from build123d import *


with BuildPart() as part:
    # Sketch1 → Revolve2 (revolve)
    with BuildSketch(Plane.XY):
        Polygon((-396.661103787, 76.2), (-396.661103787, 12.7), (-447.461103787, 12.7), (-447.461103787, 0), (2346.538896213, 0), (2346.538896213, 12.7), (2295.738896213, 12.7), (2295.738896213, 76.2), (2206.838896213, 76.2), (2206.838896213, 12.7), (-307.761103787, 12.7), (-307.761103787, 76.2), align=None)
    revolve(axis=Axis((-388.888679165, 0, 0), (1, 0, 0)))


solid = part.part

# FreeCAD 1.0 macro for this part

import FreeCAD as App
import Part
import Sketcher
Q = App.Units.Quantity


def add_polygon(sketch, points):
    """Adds a closed chain of lines whose ends are joined by coincident constraints."""
    first, n = sketch.GeometryCount, len(points)
    for a, b in zip(points, points[1:] + points[:1]):
        sketch.addGeometry(Part.LineSegment(App.Vector(*a, 0), App.Vector(*b, 0)), False)
    for i in range(n):
        sketch.addConstraint(Sketcher.Constraint("Coincident", first + i, 2, first + (i + 1) % n, 1))

doc = App.newDocument("Part")
body = doc.addObject("PartDesign::Body", "Body")

# Sketch on XY plane
sketch1 = body.newObject("Sketcher::SketchObject", "Sketch")
sketch1.AttachmentSupport = (doc.getObject("XY_Plane"), [""])
sketch1.MapMode = "FlatFace"
add_polygon(sketch1, [(-397, 76), (-397, 13), (-447, 13), (-447, 0), (2347, 0), (2347, 13), (2296, 13), (2296, 76), (2207, 76), (2207, 13), (-308, 13), (-308, 76)])  # lines 0-11
sketch1.addConstraint([
    Sketcher.Constraint("Vertical", 0),
    Sketcher.Constraint("Horizontal", 1),
    Sketcher.Constraint("Vertical", 2),
    Sketcher.Constraint("Horizontal", 3),
    Sketcher.Constraint("Vertical", 4),
    Sketcher.Constraint("Horizontal", 5),
    Sketcher.Constraint("Vertical", 6),
    Sketcher.Constraint("Horizontal", 7),
    Sketcher.Constraint("Vertical", 8),
    Sketcher.Constraint("Horizontal", 9),
    Sketcher.Constraint("Vertical", 10),
    Sketcher.Constraint("Horizontal", 11),
    Sketcher.Constraint("PointOnObject", 2, 2, -1),
    Sketcher.Constraint("Horizontal", 1, 2, 4, 2),
    Sketcher.Constraint("Horizontal", 5, 2, 8, 2),
    Sketcher.Constraint("Horizontal", 7, 2, 10, 2),
    Sketcher.Constraint("Equal", 1, 5),
    Sketcher.Constraint("Equal", 7, 11),
    Sketcher.Constraint("DistanceX", 1, 2, 1, 1, Q("2 in")),
    Sketcher.Constraint("DistanceX", 3, 1, 3, 2, Q("110 in")),
    Sketcher.Constraint("DistanceX", 9, 2, 9, 1, Q("99 in")),
    Sketcher.Constraint("DistanceY", 0, 2, 0, 1, Q("2.5 in")),
    Sketcher.Constraint("DistanceY", 2, 2, 2, 1, Q("0.5 in")),
    Sketcher.Constraint("DistanceX", 0, 2, -1, 1, Q("396.661104 mm")),
])
revolution = body.newObject("PartDesign::Revolution", "Revolution")
revolution.Profile = sketch1
revolution.ReferenceAxis = (sketch1, ["H_Axis"])
revolution.Angle = 360

doc.recompute()
